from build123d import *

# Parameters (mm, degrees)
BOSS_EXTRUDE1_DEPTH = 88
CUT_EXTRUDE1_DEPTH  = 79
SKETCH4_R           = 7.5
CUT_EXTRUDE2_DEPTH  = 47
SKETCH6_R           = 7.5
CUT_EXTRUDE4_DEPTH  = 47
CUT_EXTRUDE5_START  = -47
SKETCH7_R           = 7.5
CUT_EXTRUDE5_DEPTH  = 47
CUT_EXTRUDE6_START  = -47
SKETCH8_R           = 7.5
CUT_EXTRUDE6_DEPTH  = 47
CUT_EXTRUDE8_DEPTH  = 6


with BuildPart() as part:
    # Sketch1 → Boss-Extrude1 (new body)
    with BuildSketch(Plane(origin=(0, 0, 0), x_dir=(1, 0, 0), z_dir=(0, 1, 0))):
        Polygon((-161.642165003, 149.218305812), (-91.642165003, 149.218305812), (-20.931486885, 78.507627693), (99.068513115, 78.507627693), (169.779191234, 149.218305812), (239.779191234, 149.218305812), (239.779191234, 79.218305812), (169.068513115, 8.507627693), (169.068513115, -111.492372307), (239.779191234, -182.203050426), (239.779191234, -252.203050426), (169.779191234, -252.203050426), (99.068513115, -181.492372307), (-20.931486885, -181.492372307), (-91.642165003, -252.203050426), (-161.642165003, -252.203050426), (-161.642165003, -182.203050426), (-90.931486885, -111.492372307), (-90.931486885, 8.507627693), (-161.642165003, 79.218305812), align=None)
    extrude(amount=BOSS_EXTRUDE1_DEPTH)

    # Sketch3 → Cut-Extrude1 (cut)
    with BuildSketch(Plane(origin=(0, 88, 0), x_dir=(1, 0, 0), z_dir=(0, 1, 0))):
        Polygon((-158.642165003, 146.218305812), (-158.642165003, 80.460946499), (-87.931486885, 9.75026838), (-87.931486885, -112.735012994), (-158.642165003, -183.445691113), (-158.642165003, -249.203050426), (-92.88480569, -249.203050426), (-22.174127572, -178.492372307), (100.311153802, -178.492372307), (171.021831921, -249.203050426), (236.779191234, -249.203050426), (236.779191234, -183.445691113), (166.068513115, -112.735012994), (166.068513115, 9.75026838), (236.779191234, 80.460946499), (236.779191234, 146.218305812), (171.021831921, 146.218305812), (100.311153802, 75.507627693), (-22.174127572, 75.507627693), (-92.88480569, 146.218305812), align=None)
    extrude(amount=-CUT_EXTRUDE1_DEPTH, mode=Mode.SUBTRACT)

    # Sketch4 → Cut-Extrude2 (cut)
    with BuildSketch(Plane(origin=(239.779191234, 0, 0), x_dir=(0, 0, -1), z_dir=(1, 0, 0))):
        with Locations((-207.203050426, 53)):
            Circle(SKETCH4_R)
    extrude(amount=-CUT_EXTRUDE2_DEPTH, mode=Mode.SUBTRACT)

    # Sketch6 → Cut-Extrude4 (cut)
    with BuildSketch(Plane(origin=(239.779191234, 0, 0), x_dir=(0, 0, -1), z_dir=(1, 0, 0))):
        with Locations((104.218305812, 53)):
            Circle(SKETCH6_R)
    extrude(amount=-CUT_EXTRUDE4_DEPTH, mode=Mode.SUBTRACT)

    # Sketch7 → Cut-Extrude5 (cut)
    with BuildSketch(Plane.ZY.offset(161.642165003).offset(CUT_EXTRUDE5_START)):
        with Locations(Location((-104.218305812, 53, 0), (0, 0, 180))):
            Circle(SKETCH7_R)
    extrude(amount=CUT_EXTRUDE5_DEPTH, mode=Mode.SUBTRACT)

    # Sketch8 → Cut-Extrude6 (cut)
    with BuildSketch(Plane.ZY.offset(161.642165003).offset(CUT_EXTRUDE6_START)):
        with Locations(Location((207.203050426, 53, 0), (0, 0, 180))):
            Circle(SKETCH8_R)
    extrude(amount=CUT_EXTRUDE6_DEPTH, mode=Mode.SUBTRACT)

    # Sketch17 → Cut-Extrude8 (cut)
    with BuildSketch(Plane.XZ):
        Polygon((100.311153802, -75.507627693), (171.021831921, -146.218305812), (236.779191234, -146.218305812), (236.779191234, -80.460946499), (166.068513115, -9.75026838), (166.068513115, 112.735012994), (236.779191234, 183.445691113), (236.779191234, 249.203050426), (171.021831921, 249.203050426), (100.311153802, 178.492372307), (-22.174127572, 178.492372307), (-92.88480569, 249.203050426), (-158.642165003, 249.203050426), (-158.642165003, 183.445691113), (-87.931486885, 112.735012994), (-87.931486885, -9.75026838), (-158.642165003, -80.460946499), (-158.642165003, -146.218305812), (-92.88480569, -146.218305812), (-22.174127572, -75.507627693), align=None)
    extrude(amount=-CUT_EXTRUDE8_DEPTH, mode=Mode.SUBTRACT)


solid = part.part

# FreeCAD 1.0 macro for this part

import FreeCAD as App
import Part
import Sketcher
Q = App.Units.Quantity


def add_polygon(sketch, points):
    """Adds a closed chain of lines whose ends are joined by coincident constraints."""
    first, n = sketch.GeometryCount, len(points)
    for a, b in zip(points, points[1:] + points[:1]):
        sketch.addGeometry(Part.LineSegment(App.Vector(*a, 0), App.Vector(*b, 0)), False)
    for i in range(n):
        sketch.addConstraint(Sketcher.Constraint("Coincident", first + i, 2, first + (i + 1) % n, 1))

doc = App.newDocument("Part")
params = doc.addObject("Spreadsheet::Sheet", "Params")
for row, (alias, value) in enumerate([
    ("sketch1_width", "70 mm"),
    ("sketch1_width2", "120 mm"),
    ("sketch1_length", "100 mm"),
    ("pad1_length", "88 mm"),
    ("sketch2_length", "100 mm"),
    ("pocket1_length", "79 mm"),
    ("sketch3_diameter", "15 mm"),
    ("pocket2_length", "47 mm"),
    ("sketch4_diameter", "15 mm"),
    ("pocket3_length", "47 mm"),
    ("sketch5_diameter", "15 mm"),
    ("pocket4_length", "47 mm"),
    ("sketch6_diameter", "15 mm"),
    ("pocket5_length", "47 mm"),
    ("sketch7_length", "100 mm"),
    ("pocket6_length", "6 mm"),
], start=1):
    params.set(f"A{row}", alias)
    params.set(f"B{row}", "=" + value)
    params.setAlias(f"B{row}", alias)

body = doc.addObject("PartDesign::Body", "Body")

sketch1 = body.newObject("Sketcher::SketchObject", "Sketch")
sketch1.AttachmentSupport = (doc.getObject("XZ_Plane"), [""])
sketch1.MapMode = "FlatFace"
add_polygon(sketch1, [(-92, -149), (-162, -149), (-162, -79), (-91, -9), (-91, 111), (-162, 182), (-162, 252), (-92, 252), (-21, 181), (99, 181), (170, 252), (240, 252), (240, 182), (169, 111), (169, -9), (240, -79), (240, -149), (170, -149), (99, -79), (-21, -79)])
sketch1.addConstraint([
    Sketcher.Constraint("Horizontal", 0),
    Sketcher.Constraint("Vertical", 1),
    Sketcher.Constraint("Vertical", 3),
    Sketcher.Constraint("Vertical", 5),
    Sketcher.Constraint("Horizontal", 6),
    Sketcher.Constraint("Horizontal", 8),
    Sketcher.Constraint("Horizontal", 10),
    Sketcher.Constraint("Vertical", 11),
    Sketcher.Constraint("Vertical", 13),
    Sketcher.Constraint("Vertical", 15),
    Sketcher.Constraint("Horizontal", 16),
    Sketcher.Constraint("Horizontal", 18),
    Sketcher.Constraint("Perpendicular", 2, 4),
    Sketcher.Constraint("Parallel", 4, 7),
    Sketcher.Constraint("Perpendicular", 7, 9),
    Sketcher.Constraint("Parallel", 9, 12),
    Sketcher.Constraint("Perpendicular", 12, 14),
    Sketcher.Constraint("Parallel", 14, 17),
    Sketcher.Constraint("Perpendicular", 17, 19),
    Sketcher.Constraint("Horizontal", 6, 2, 9, 2),
    Sketcher.Constraint("Horizontal", 4, 2, 11, 2),
    Sketcher.Constraint("Horizontal", 3, 2, 12, 2),
    Sketcher.Constraint("Horizontal", 2, 2, 13, 2),
    Sketcher.Constraint("Horizontal", 1, 2, 14, 2),
    Sketcher.Constraint("Horizontal", 0, 2, 15, 2),
    Sketcher.Constraint("Vertical", 1, 2, 4, 2),
    Sketcher.Constraint("Vertical", 11, 2, 14, 2),
    Sketcher.Constraint("Vertical", 9, 2, 16, 2),
    Sketcher.Constraint("Vertical", 8, 2, 17, 2),
    Sketcher.Constraint("Vertical", 7, 2, 18, 2),
    Sketcher.Constraint("Equal", 6, 10),
    Sketcher.Constraint("Equal", 16, 1),
    Sketcher.Constraint("Equal", 18, 3),
    Sketcher.Constraint("Equal", 1, 5),
    Sketcher.Constraint("Equal", 4, 7),
    Sketcher.Constraint("DistanceX", 0, 2, 0, 1, Q("70 mm")),
    Sketcher.Constraint("DistanceX", 8, 1, 8, 2, Q("120 mm")),
    Sketcher.Constraint("Distance", 2, Q("100 mm")),
    Sketcher.Constraint("DistanceY", -1, 1, 4, 2, Q("182.20305 mm")),
    Sketcher.Constraint("DistanceX", -1, 1, 9, 2, Q("169.779191 mm")),
])
sketch1.setExpression("Constraints[55]", "Params.sketch1_width")
sketch1.setExpression("Constraints[56]", "Params.sketch1_width2")
sketch1.setExpression("Constraints[57]", "Params.sketch1_length")
pad1 = body.newObject("PartDesign::Pad", "Pad")
pad1.Profile = sketch1
pad1.setExpression("Length", "Params.pad1_length")
pad1.Reversed = True

sketch2 = body.newObject("Sketcher::SketchObject", "Sketch001")
sketch2.AttachmentSupport = (doc.getObject("XZ_Plane"), [""])
sketch2.MapMode = "FlatFace"
sketch2.AttachmentOffset = App.Placement(App.Vector(0, 0, -88), App.Rotation())
add_polygon(sketch2, [(-159, -146), (-159, -80), (-88, -10), (-88, 113), (-159, 183), (-159, 249), (-93, 249), (-22, 178), (100, 178), (171, 249), (237, 249), (237, 183), (166, 113), (166, -10), (237, -80), (237, -146), (171, -146), (100, -76), (-22, -76), (-93, -146)])
sketch2.addConstraint([
    Sketcher.Constraint("Vertical", 0),
    Sketcher.Constraint("Vertical", 2),
    Sketcher.Constraint("Vertical", 4),
    Sketcher.Constraint("Horizontal", 5),
    Sketcher.Constraint("Horizontal", 7),
    Sketcher.Constraint("Horizontal", 9),
    Sketcher.Constraint("Vertical", 10),
    Sketcher.Constraint("Vertical", 12),
    Sketcher.Constraint("Vertical", 14),
    Sketcher.Constraint("Horizontal", 15),
    Sketcher.Constraint("Horizontal", 17),
    Sketcher.Constraint("Horizontal", 19),
    Sketcher.Constraint("Perpendicular", 1, 3),
    Sketcher.Constraint("Parallel", 3, 6),
    Sketcher.Constraint("Perpendicular", 6, 8),
    Sketcher.Constraint("Parallel", 8, 11),
    Sketcher.Constraint("Perpendicular", 11, 13),
    Sketcher.Constraint("Parallel", 13, 16),
    Sketcher.Constraint("Perpendicular", 16, 18),
    Sketcher.Constraint("Horizontal", 5, 2, 8, 2),
    Sketcher.Constraint("Horizontal", 3, 2, 10, 2),
    Sketcher.Constraint("Horizontal", 2, 2, 11, 2),
    Sketcher.Constraint("Horizontal", 1, 2, 12, 2),
    Sketcher.Constraint("Horizontal", 0, 2, 13, 2),
    Sketcher.Constraint("Horizontal", 15, 2, 18, 2),
    Sketcher.Constraint("Vertical", 0, 2, 3, 2),
    Sketcher.Constraint("Vertical", 10, 2, 13, 2),
    Sketcher.Constraint("Vertical", 8, 2, 15, 2),
    Sketcher.Constraint("Vertical", 7, 2, 16, 2),
    Sketcher.Constraint("Vertical", 6, 2, 17, 2),
    Sketcher.Constraint("Equal", 5, 9),
    Sketcher.Constraint("Equal", 19, 0),
    Sketcher.Constraint("Equal", 17, 2),
    Sketcher.Constraint("Equal", 0, 4),
    Sketcher.Constraint("Equal", 3, 6),
    Sketcher.Constraint("Distance", 1, Q("100 mm")),
    Sketcher.Constraint("DistanceX", 1, 2, 12, 2, Q("254 mm")),
    Sketcher.Constraint("DistanceX", 5, 1, 5, 2, Q("65.757359 mm")),
    Sketcher.Constraint("DistanceY", 1, 2, -1, 1, Q("9.750268 mm")),
    Sketcher.Constraint("DistanceX", -1, 1, 8, 2, Q("171.021832 mm")),
])
sketch2.setExpression("Constraints[55]", "Params.sketch2_length")
pocket1 = body.newObject("PartDesign::Pocket", "Pocket")
pocket1.Profile = sketch2
pocket1.setExpression("Length", "Params.pocket1_length")
pocket1.Reversed = True

sketch3 = body.newObject("Sketcher::SketchObject", "Sketch002")
sketch3.AttachmentSupport = (doc.getObject("YZ_Plane"), [""])
sketch3.MapMode = "FlatFace"
sketch3.AttachmentOffset = App.Placement(App.Vector(0, 0, 239.779191), App.Rotation())
sketch3.addGeometry(Part.Circle(App.Vector(53, 207, 0), App.Vector(0, 0, 1), 8), False)
sketch3.addConstraint([
    Sketcher.Constraint("Diameter", 0, Q("15 mm")),
    Sketcher.Constraint("DistanceX", -1, 1, 0, 3, Q("53 mm")),
    Sketcher.Constraint("DistanceY", -1, 1, 0, 3, Q("207.20305 mm")),
])
sketch3.setExpression("Constraints[0]", "Params.sketch3_diameter")
pocket2 = body.newObject("PartDesign::Pocket", "Pocket001")
pocket2.Profile = sketch3
pocket2.setExpression("Length", "Params.pocket2_length")

sketch4 = body.newObject("Sketcher::SketchObject", "Sketch003")
sketch4.AttachmentSupport = (doc.getObject("YZ_Plane"), [""])
sketch4.MapMode = "FlatFace"
sketch4.AttachmentOffset = App.Placement(App.Vector(0, 0, 239.779191), App.Rotation())
sketch4.addGeometry(Part.Circle(App.Vector(53, -104, 0), App.Vector(0, 0, 1), 8), False)
sketch4.addConstraint([
    Sketcher.Constraint("Diameter", 0, Q("15 mm")),
    Sketcher.Constraint("DistanceX", -1, 1, 0, 3, Q("53 mm")),
    Sketcher.Constraint("DistanceY", 0, 3, -1, 1, Q("104.218306 mm")),
])
sketch4.setExpression("Constraints[0]", "Params.sketch4_diameter")
pocket3 = body.newObject("PartDesign::Pocket", "Pocket002")
pocket3.Profile = sketch4
pocket3.setExpression("Length", "Params.pocket3_length")

sketch5 = body.newObject("Sketcher::SketchObject", "Sketch004")
sketch5.AttachmentSupport = (doc.getObject("YZ_Plane"), [""])
sketch5.MapMode = "FlatFace"
sketch5.AttachmentOffset = App.Placement(App.Vector(0, 0, -114.642165), App.Rotation())
sketch5.addGeometry(Part.Circle(App.Vector(53, -104, 0), App.Vector(0, 0, 1), 8), False)
sketch5.addConstraint([
    Sketcher.Constraint("Diameter", 0, Q("15 mm")),
    Sketcher.Constraint("DistanceX", -1, 1, 0, 3, Q("53 mm")),
    Sketcher.Constraint("DistanceY", 0, 3, -1, 1, Q("104.218306 mm")),
])
sketch5.setExpression("Constraints[0]", "Params.sketch5_diameter")
pocket4 = body.newObject("PartDesign::Pocket", "Pocket003")
pocket4.Profile = sketch5
pocket4.setExpression("Length", "Params.pocket4_length")

sketch6 = body.newObject("Sketcher::SketchObject", "Sketch005")
sketch6.AttachmentSupport = (doc.getObject("YZ_Plane"), [""])
sketch6.MapMode = "FlatFace"
sketch6.AttachmentOffset = App.Placement(App.Vector(0, 0, -114.642165), App.Rotation())
sketch6.addGeometry(Part.Circle(App.Vector(53, 207, 0), App.Vector(0, 0, 1), 8), False)
sketch6.addConstraint([
    Sketcher.Constraint("Diameter", 0, Q("15 mm")),
    Sketcher.Constraint("DistanceX", -1, 1, 0, 3, Q("53 mm")),
    Sketcher.Constraint("DistanceY", -1, 1, 0, 3, Q("207.20305 mm")),
])
sketch6.setExpression("Constraints[0]", "Params.sketch6_diameter")
pocket5 = body.newObject("PartDesign::Pocket", "Pocket004")
pocket5.Profile = sketch6
pocket5.setExpression("Length", "Params.pocket5_length")

sketch7 = body.newObject("Sketcher::SketchObject", "Sketch006")
sketch7.AttachmentSupport = (doc.getObject("XZ_Plane"), [""])
sketch7.MapMode = "FlatFace"
add_polygon(sketch7, [(100, -76), (171, -146), (237, -146), (237, -80), (166, -10), (166, 113), (237, 183), (237, 249), (171, 249), (100, 178), (-22, 178), (-93, 249), (-159, 249), (-159, 183), (-88, 113), (-88, -10), (-159, -80), (-159, -146), (-93, -146), (-22, -76)])
sketch7.addConstraint([
    Sketcher.Constraint("Horizontal", 1),
    Sketcher.Constraint("Vertical", 2),
    Sketcher.Constraint("Vertical", 4),
    Sketcher.Constraint("Vertical", 6),
    Sketcher.Constraint("Horizontal", 7),
    Sketcher.Constraint("Horizontal", 9),
    Sketcher.Constraint("Horizontal", 11),
    Sketcher.Constraint("Vertical", 12),
    Sketcher.Constraint("Vertical", 14),
    Sketcher.Constraint("Vertical", 16),
    Sketcher.Constraint("Horizontal", 17),
    Sketcher.Constraint("Horizontal", 19),
    Sketcher.Constraint("Parallel", 0, 3),
    Sketcher.Constraint("Perpendicular", 3, 5),
    Sketcher.Constraint("Parallel", 5, 8),
    Sketcher.Constraint("Perpendicular", 8, 10),
    Sketcher.Constraint("Parallel", 10, 13),
    Sketcher.Constraint("Perpendicular", 13, 15),
    Sketcher.Constraint("Parallel", 15, 18),
    Sketcher.Constraint("Horizontal", 7, 2, 10, 2),
    Sketcher.Constraint("Horizontal", 5, 2, 12, 2),
    Sketcher.Constraint("Horizontal", 4, 2, 13, 2),
    Sketcher.Constraint("Horizontal", 3, 2, 14, 2),
    Sketcher.Constraint("Horizontal", 2, 2, 15, 2),
    Sketcher.Constraint("Horizontal", 1, 2, 16, 2),
    Sketcher.Constraint("Vertical", 2, 2, 5, 2),
    Sketcher.Constraint("Vertical", 0, 2, 7, 2),
    Sketcher.Constraint("Vertical", 12, 2, 15, 2),
    Sketcher.Constraint("Vertical", 10, 2, 17, 2),
    Sketcher.Constraint("Vertical", 9, 2, 18, 2),
    Sketcher.Constraint("Equal", 7, 11),
    Sketcher.Constraint("Equal", 17, 2),
    Sketcher.Constraint("Equal", 19, 4),
    Sketcher.Constraint("Equal", 2, 6),
    Sketcher.Constraint("Equal", 0, 3),
    Sketcher.Constraint("Distance", 0, Q("100 mm")),
    Sketcher.Constraint("DistanceX", 14, 2, 3, 2, Q("254 mm")),
    Sketcher.Constraint("DistanceX", 1, 1, 1, 2, Q("65.757359 mm")),
    Sketcher.Constraint("DistanceX", -1, 1, 0, 2, Q("171.021832 mm")),
    Sketcher.Constraint("DistanceY", 3, 2, -1, 1, Q("9.750268 mm")),
])
sketch7.setExpression("Constraints[55]", "Params.sketch7_length")
pocket6 = body.newObject("PartDesign::Pocket", "Pocket005")
pocket6.Profile = sketch7
pocket6.setExpression("Length", "Params.pocket6_length")

doc.recompute()
